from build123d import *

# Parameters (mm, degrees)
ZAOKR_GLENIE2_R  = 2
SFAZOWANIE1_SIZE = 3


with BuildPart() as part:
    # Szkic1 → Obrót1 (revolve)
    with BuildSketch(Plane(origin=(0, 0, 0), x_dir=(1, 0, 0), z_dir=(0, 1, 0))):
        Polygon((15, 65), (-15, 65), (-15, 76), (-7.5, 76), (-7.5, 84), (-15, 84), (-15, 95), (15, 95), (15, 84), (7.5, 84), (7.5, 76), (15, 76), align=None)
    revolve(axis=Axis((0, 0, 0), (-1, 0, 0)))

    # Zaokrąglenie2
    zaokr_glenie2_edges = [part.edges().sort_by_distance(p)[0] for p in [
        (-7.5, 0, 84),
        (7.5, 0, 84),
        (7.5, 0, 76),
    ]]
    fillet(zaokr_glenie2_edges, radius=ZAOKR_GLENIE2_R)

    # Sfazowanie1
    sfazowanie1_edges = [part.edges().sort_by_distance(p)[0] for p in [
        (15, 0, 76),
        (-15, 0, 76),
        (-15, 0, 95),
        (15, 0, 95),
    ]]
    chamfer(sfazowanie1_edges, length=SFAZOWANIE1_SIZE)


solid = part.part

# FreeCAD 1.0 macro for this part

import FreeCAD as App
import Part
import Sketcher

V = App.Vector
Q = App.Units.Quantity


def edges_at(feature, points):
    """Names of the edges that pass closest to the given points."""
    edges = feature.Shape.Edges
    near = lambda p: min(range(len(edges)), key=lambda i: edges[i].distToShape(Part.Vertex(*p))[0])
    return sorted({f"Edge{near(p) + 1}" for p in points})

doc = App.newDocument("Part")
body = doc.addObject("PartDesign::Body", "Body")

# Sketch on XZ plane
sketch1 = body.newObject("Sketcher::SketchObject", "Sketch")
sketch1.AttachmentSupport = (doc.getObject("XZ_Plane"), [""])
sketch1.MapMode = "FlatFace"
sketch1.addGeometry([
    Part.LineSegment(V(-15, -65, 0), V(15, -65, 0)),  # 0
    Part.LineSegment(V(15, -65, 0), V(15, -76, 0)),  # 1
    Part.LineSegment(V(15, -76, 0), V(7.5, -76, 0)),  # 2
    Part.LineSegment(V(7.5, -76, 0), V(7.5, -84, 0)),  # 3
    Part.LineSegment(V(7.5, -84, 0), V(15, -84, 0)),  # 4
    Part.LineSegment(V(15, -84, 0), V(15, -95, 0)),  # 5
    Part.LineSegment(V(15, -95, 0), V(-15, -95, 0)),  # 6
    Part.LineSegment(V(-15, -95, 0), V(-15, -84, 0)),  # 7
    Part.LineSegment(V(-15, -84, 0), V(-7.5, -84, 0)),  # 8
    Part.LineSegment(V(-7.5, -84, 0), V(-7.5, -76, 0)),  # 9
    Part.LineSegment(V(-7.5, -76, 0), V(-15, -76, 0)),  # 10
    Part.LineSegment(V(-15, -76, 0), V(-15, -65, 0)),  # 11
], False)
sketch1.addConstraint([
    Sketcher.Constraint("Coincident", 0, 2, 1, 1),
    Sketcher.Constraint("Coincident", 1, 2, 2, 1),
    Sketcher.Constraint("Coincident", 2, 2, 3, 1),
    Sketcher.Constraint("Coincident", 3, 2, 4, 1),
    Sketcher.Constraint("Coincident", 4, 2, 5, 1),
    Sketcher.Constraint("Coincident", 5, 2, 6, 1),
    Sketcher.Constraint("Coincident", 6, 2, 7, 1),
    Sketcher.Constraint("Coincident", 7, 2, 8, 1),
    Sketcher.Constraint("Coincident", 8, 2, 9, 1),
    Sketcher.Constraint("Coincident", 9, 2, 10, 1),
    Sketcher.Constraint("Coincident", 10, 2, 11, 1),
    Sketcher.Constraint("Coincident", 11, 2, 0, 1),
    Sketcher.Constraint("Horizontal", 0),
    Sketcher.Constraint("Vertical", 1),
    Sketcher.Constraint("Horizontal", 2),
    Sketcher.Constraint("Vertical", 3),
    Sketcher.Constraint("Horizontal", 4),
    Sketcher.Constraint("Vertical", 5),
    Sketcher.Constraint("Horizontal", 6),
    Sketcher.Constraint("Vertical", 7),
    Sketcher.Constraint("Horizontal", 8),
    Sketcher.Constraint("Vertical", 9),
    Sketcher.Constraint("Horizontal", 10),
    Sketcher.Constraint("Vertical", 11),
    Sketcher.Constraint("Symmetric", 4, 2, 7, 2, -2),
    Sketcher.Constraint("Symmetric", 2, 2, 9, 2, -2),
    Sketcher.Constraint("Vertical", 1, 2, 4, 2),
    Sketcher.Constraint("Vertical", 7, 2, 10, 2),
    Sketcher.Constraint("Equal", 1, 5),
    Sketcher.Constraint("DistanceX", 0, 1, 0, 2, Q("30 mm")),
    Sketcher.Constraint("DistanceY", 1, 2, 1, 1, Q("11 mm")),
    Sketcher.Constraint("DistanceY", 3, 2, 3, 1, Q("8 mm")),
    Sketcher.Constraint("DistanceX", 2, 2, 2, 1, Q("7.5 mm")),
    Sketcher.Constraint("DistanceY", 0, 2, -1, 1, Q("65 mm")),
])
revolution = body.newObject("PartDesign::Revolution", "Revolution")
revolution.Profile = sketch1
revolution.ReferenceAxis = (sketch1, ["H_Axis"])
revolution.Angle = 360
doc.recompute()

fillet = body.newObject("PartDesign::Fillet", "Fillet")
fillet.Base = (revolution, edges_at(revolution, [(-7.5, 0, 84), (7.5, 0, 84), (7.5, 0, 76)]))
fillet.Radius = 2
doc.recompute()

chamfer = body.newObject("PartDesign::Chamfer", "Chamfer")
chamfer.Base = (fillet, edges_at(fillet, [
    (15, 0, 76),
    (-15, 0, 76),
    (-15, 0, 95),
    (15, 0, 95),
]))
chamfer.Size = 3

doc.recompute()
